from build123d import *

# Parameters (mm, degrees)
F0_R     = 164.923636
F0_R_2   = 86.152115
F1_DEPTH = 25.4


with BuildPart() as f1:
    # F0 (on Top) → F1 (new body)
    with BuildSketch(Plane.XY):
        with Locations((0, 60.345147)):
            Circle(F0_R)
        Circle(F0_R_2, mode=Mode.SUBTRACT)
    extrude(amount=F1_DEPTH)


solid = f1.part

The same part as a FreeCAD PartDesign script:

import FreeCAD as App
import Part
import Sketcher

V = App.Vector

doc = App.newDocument("Part")
params = doc.addObject("Spreadsheet::Sheet", "Params")
for row, (alias, value) in enumerate([
    ("pad1_length", "1 in"),
], start=1):
    params.set(f"A{row}", alias)
    params.set(f"B{row}", "=" + value)
    params.setAlias(f"B{row}", alias)

body = doc.addObject("PartDesign::Body", "Body")

# Sketch on XY plane
sketch1 = doc.addObject("Sketcher::SketchObject", "Sketch")
body.addObject(sketch1)
sketch1.AttachmentSupport = (doc.XY_Plane, [""])
sketch1.MapMode = "FlatFace"
sketch1.addGeometry([
    Part.Circle(V(0, 60, 0), V(0, 0, 1), 165),
    Part.Circle(V(0, 0, 0), V(0, 0, 1), 86),
], False)
sketch1.addConstraint([
    Sketcher.Constraint("Coincident", 1, 3, -1, 1),
    Sketcher.Constraint("PointOnObject", 0, 3, -2),
    Sketcher.Constraint("Diameter", 0, 329.847272),
    Sketcher.Constraint("Diameter", 1, 172.30423),
    Sketcher.Constraint("DistanceY", -1, 1, 0, 3, 60.345147),
])
pad1 = doc.addObject("PartDesign::Pad", "Pad")
body.addObject(pad1)
pad1.Profile = sketch1
pad1.setExpression("Length", "Params.pad1_length")

doc.recompute()
